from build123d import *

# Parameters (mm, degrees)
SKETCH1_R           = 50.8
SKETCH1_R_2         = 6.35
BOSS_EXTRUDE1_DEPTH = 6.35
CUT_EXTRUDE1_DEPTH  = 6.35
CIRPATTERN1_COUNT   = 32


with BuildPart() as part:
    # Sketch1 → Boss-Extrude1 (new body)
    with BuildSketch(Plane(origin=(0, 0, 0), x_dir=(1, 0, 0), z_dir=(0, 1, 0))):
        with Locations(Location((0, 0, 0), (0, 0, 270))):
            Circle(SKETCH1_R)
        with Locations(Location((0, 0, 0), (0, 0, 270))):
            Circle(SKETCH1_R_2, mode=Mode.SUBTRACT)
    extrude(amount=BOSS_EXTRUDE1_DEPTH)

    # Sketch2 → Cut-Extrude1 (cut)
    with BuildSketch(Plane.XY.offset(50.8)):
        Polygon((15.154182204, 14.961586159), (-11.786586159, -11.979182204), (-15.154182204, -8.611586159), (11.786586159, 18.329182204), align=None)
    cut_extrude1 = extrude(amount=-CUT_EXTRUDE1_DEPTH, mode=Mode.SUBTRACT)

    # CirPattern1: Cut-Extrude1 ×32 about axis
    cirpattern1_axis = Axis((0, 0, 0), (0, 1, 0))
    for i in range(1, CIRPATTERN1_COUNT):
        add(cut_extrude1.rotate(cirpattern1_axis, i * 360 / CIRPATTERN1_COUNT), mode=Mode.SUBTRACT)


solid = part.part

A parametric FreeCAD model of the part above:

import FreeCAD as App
import Part
import Sketcher

V = App.Vector
Q = App.Units.Quantity

doc = App.newDocument("Part")
params = doc.addObject("Spreadsheet::Sheet", "Params")
for row, (alias, value) in enumerate([
    ("sketch1_diameter", "4 in"),
    ("sketch1_diameter2", "0.5 in"),
    ("pad1_length", "0.25 in"),
    ("sketch2_length", "1.5 in"),
    ("sketch2_length2", "0.1875 in"),
    ("pocket1_length", "0.25 in"),
], start=1):
    params.set(f"A{row}", alias)
    params.set(f"B{row}", "=" + value)
    params.setAlias(f"B{row}", alias)

body = doc.addObject("PartDesign::Body", "Body")

# Sketch on XZ plane
sketch1 = doc.addObject("Sketcher::SketchObject", "Sketch")
body.addObject(sketch1)
sketch1.AttachmentSupport = (doc.XZ_Plane, [""])
sketch1.MapMode = "FlatFace"
sketch1.addGeometry(Part.Circle(V(0, 0, 0), V(0, 0, 1), 51), False)
sketch1.addGeometry(Part.Circle(V(0, 0, 0), V(0, 0, 1), 6), False)
sketch1.addConstraint(Sketcher.Constraint("Coincident", 0, 3, -1, 1))
sketch1.addConstraint(Sketcher.Constraint("Coincident", 1, 3, -1, 1))
sketch1.addConstraint(Sketcher.Constraint("Diameter", 0, Q("4 in")))
sketch1.addConstraint(Sketcher.Constraint("Diameter", 1, Q("0.5 in")))
sketch1.setExpression("Constraints[2]", "Params.sketch1_diameter")
sketch1.setExpression("Constraints[3]", "Params.sketch1_diameter2")
pad1 = doc.addObject("PartDesign::Pad", "Pad")
body.addObject(pad1)
pad1.Profile = sketch1
pad1.setExpression("Length", "Params.pad1_length")
pad1.Reversed = True

# Sketch on XY plane
sketch2 = doc.addObject("Sketcher::SketchObject", "Sketch001")
body.addObject(sketch2)
sketch2.AttachmentSupport = (doc.XY_Plane, [""])
sketch2.MapMode = "FlatFace"
sketch2.AttachmentOffset = App.Placement(V(0, 0, 2 * 25.4), App.Rotation())
sketch2.addGeometry(Part.LineSegment(V(-11.8, -12, 0), V(15.2, 15, 0)), False)
sketch2.addGeometry(Part.LineSegment(V(15.2, 15, 0), V(11.8, 18.3, 0)), False)
sketch2.addGeometry(Part.LineSegment(V(11.8, 18.3, 0), V(-15.2, -8.6, 0)), False)
sketch2.addGeometry(Part.LineSegment(V(-15.2, -8.6, 0), V(-11.8, -12, 0)), False)
sketch2.addConstraint(Sketcher.Constraint("Coincident", 0, 2, 1, 1))
sketch2.addConstraint(Sketcher.Constraint("Coincident", 1, 2, 2, 1))
sketch2.addConstraint(Sketcher.Constraint("Coincident", 2, 2, 3, 1))
sketch2.addConstraint(Sketcher.Constraint("Coincident", 3, 2, 0, 1))
sketch2.addConstraint(Sketcher.Constraint("Perpendicular", 0, 1))
sketch2.addConstraint(Sketcher.Constraint("Perpendicular", 1, 2))
sketch2.addConstraint(Sketcher.Constraint("Perpendicular", 2, 3))
sketch2.addConstraint(Sketcher.Constraint("Angle", 0, Q("45 deg")))
sketch2.addConstraint(Sketcher.Constraint("Distance", 0, Q("1.5 in")))
sketch2.addConstraint(Sketcher.Constraint("Distance", 1, Q("0.1875 in")))
sketch2.addConstraint(Sketcher.Constraint("DistanceX", -1, 1, 0, 2, 15.154182))
sketch2.addConstraint(Sketcher.Constraint("DistanceY", -1, 1, 0, 2, 14.961586))
sketch2.setExpression("Constraints[8]", "Params.sketch2_length")
sketch2.setExpression("Constraints[9]", "Params.sketch2_length2")
pocket1 = doc.addObject("PartDesign::Pocket", "Pocket")
body.addObject(pocket1)
pocket1.Profile = sketch2
pocket1.setExpression("Length", "Params.pocket1_length")
doc.recompute()

polarpattern = doc.addObject("PartDesign::PolarPattern", "PolarPattern")
body.addObject(polarpattern)
polarpattern.Originals = [pocket1]
polarpattern.Axis = (doc.Y_Axis, [""])
polarpattern.Angle = 360
polarpattern.Occurrences = 32
body.Tip = polarpattern

doc.recompute()
